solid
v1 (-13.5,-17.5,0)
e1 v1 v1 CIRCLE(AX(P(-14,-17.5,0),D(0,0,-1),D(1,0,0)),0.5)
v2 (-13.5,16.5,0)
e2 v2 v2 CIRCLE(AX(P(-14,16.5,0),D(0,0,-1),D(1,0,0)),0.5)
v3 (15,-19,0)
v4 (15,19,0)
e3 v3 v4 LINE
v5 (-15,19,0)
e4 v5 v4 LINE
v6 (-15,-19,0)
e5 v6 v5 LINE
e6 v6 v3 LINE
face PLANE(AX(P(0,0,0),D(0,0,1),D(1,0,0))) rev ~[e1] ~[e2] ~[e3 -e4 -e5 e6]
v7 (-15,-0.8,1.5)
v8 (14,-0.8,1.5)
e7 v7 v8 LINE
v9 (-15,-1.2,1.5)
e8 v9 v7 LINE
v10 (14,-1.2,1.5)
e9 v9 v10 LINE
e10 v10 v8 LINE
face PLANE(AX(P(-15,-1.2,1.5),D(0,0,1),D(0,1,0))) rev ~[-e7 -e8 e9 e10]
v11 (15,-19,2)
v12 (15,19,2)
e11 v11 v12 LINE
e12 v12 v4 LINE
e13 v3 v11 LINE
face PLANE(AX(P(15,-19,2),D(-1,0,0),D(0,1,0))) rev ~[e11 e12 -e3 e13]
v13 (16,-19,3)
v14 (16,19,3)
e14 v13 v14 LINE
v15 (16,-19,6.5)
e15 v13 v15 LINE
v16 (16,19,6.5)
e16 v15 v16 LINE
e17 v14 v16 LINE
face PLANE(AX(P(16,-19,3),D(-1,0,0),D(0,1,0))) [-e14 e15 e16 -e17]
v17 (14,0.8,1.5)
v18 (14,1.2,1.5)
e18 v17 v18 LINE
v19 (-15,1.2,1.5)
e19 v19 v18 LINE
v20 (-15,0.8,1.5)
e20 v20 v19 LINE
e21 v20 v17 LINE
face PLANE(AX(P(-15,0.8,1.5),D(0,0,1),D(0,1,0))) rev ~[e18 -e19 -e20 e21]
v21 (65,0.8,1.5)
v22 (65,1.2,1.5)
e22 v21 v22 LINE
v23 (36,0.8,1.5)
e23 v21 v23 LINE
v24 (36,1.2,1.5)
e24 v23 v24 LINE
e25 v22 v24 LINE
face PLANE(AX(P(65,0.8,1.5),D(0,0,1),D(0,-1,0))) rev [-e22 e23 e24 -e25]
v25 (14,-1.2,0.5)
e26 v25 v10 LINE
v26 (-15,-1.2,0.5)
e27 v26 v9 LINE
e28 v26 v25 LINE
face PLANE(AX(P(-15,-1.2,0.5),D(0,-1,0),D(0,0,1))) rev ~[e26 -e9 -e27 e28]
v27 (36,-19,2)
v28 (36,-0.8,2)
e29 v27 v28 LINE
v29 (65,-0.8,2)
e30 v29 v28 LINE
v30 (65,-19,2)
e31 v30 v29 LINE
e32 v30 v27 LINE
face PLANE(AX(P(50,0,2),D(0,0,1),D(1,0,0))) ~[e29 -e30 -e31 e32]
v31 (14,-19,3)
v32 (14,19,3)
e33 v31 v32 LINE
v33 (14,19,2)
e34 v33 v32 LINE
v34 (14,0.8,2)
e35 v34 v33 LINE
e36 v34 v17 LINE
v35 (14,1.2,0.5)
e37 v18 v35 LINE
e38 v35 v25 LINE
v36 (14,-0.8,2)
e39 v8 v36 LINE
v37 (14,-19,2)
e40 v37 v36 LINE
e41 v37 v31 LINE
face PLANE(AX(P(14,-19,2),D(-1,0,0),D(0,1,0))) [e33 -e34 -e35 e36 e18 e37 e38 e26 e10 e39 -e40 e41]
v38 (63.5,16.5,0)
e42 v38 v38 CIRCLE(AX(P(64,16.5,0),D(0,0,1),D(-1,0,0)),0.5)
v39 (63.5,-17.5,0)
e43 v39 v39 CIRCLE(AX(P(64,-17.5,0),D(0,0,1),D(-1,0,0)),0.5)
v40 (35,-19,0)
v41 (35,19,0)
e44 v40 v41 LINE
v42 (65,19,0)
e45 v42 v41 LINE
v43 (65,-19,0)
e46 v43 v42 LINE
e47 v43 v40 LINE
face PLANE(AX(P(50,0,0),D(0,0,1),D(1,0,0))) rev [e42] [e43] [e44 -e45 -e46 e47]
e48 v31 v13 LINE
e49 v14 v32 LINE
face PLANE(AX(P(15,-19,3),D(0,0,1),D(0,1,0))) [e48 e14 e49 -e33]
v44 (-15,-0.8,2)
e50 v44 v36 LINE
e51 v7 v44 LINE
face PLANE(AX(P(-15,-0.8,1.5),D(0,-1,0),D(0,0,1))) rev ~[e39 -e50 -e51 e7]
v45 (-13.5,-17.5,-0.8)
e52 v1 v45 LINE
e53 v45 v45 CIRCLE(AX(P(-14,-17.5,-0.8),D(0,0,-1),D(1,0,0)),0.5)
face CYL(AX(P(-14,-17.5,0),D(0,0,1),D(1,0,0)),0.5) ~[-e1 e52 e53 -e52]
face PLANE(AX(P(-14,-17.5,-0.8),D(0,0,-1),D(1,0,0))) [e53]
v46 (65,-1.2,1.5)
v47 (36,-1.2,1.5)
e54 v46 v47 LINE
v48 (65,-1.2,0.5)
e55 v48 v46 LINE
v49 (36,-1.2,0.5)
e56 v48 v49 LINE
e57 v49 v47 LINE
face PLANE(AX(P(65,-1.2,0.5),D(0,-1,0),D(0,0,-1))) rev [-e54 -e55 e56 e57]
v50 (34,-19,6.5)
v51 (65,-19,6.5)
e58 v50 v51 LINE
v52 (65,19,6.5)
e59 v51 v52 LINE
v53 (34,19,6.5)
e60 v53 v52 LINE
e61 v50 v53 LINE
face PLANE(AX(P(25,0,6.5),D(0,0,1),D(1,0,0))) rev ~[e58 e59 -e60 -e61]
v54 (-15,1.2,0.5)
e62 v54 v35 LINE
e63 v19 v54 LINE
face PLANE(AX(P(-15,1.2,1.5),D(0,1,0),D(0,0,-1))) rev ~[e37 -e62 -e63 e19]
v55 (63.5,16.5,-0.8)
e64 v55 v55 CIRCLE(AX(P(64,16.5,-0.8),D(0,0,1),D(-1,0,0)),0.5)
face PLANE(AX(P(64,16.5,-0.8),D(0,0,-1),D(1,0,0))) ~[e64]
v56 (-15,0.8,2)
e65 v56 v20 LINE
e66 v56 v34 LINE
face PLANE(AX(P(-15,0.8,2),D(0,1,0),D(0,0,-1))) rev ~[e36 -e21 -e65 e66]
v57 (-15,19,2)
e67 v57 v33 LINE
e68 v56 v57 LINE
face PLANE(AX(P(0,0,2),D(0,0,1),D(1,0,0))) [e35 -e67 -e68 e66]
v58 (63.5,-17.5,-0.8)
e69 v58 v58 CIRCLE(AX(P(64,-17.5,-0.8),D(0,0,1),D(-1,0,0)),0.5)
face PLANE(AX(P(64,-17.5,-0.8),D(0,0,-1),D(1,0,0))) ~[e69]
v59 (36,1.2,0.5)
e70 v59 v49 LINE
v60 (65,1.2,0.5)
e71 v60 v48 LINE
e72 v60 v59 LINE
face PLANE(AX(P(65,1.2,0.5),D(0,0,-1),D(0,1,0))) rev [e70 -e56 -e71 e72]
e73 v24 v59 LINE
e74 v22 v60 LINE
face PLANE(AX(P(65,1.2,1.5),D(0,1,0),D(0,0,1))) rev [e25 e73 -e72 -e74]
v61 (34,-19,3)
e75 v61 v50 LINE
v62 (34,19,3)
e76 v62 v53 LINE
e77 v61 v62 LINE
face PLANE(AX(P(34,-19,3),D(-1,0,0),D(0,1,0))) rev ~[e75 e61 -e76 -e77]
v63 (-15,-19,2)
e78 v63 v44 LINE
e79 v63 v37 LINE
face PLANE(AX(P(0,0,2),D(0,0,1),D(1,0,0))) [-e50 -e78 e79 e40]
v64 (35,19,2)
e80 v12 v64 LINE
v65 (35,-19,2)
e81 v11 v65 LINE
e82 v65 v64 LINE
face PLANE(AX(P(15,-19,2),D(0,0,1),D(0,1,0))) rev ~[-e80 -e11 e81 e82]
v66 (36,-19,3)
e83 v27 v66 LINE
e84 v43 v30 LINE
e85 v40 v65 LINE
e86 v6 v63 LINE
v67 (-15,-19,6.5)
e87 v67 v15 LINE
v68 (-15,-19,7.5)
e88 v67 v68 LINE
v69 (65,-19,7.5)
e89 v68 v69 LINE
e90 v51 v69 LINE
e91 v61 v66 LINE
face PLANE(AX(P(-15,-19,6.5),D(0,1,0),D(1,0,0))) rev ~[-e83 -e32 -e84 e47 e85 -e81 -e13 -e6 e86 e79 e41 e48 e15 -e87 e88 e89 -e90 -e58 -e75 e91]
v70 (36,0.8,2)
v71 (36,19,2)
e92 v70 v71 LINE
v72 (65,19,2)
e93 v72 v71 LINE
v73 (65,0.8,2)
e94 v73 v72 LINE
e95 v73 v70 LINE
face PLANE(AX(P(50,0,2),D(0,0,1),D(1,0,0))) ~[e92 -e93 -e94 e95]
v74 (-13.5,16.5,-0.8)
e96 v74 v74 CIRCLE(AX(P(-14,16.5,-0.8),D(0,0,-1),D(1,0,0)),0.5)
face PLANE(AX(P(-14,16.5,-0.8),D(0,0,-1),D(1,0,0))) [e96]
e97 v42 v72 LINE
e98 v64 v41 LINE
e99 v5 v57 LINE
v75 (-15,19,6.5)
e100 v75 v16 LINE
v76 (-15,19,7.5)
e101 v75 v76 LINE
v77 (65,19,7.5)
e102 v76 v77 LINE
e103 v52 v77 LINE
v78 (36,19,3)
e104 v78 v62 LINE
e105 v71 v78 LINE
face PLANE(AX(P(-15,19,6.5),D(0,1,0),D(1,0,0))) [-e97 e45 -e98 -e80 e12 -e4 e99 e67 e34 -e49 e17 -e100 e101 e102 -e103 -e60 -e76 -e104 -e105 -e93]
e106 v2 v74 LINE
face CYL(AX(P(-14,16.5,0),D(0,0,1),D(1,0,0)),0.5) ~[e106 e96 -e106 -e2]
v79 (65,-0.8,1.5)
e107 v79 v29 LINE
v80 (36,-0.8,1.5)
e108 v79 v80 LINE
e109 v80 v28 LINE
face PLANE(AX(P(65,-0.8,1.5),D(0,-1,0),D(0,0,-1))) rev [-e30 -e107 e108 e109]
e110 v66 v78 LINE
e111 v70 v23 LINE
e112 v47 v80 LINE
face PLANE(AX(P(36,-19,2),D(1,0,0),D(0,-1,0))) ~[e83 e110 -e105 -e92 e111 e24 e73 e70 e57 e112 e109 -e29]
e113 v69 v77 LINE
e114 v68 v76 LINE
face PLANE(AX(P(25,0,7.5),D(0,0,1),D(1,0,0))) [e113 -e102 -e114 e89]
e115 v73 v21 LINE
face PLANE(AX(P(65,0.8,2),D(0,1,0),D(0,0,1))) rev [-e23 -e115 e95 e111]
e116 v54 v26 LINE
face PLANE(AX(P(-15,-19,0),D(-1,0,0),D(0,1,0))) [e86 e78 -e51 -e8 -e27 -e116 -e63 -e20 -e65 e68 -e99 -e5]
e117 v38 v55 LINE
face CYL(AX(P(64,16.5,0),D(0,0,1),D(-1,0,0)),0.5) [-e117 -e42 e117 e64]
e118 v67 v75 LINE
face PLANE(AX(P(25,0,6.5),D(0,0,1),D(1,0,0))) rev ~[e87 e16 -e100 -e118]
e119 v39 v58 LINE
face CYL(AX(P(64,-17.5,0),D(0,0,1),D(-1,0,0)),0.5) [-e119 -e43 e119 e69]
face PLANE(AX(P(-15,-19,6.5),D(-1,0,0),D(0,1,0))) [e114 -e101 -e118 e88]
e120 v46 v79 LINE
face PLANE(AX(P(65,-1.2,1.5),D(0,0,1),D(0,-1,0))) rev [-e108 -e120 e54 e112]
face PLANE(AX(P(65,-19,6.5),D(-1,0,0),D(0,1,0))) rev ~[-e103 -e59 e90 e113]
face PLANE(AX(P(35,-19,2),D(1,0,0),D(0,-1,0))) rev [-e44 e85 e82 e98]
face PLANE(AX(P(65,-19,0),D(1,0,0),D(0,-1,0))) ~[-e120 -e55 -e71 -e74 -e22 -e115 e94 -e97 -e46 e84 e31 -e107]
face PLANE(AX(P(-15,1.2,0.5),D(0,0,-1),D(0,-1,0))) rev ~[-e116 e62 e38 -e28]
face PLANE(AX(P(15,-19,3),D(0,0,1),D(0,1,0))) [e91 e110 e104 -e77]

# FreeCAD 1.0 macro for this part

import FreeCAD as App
import Part
import Sketcher
Q = App.Units.Quantity


def add_polygon(sketch, points):
    """Adds a closed chain of lines whose ends are joined by coincident constraints."""
    first, n = sketch.GeometryCount, len(points)
    for a, b in zip(points, points[1:] + points[:1]):
        sketch.addGeometry(Part.LineSegment(App.Vector(*a, 0), App.Vector(*b, 0)), False)
    for i in range(n):
        sketch.addConstraint(Sketcher.Constraint("Coincident", first + i, 2, first + (i + 1) % n, 1))

doc = App.newDocument("Part")
params = doc.addObject("Spreadsheet::Sheet", "Params")
for row, (alias, value) in enumerate([
    ("sketch1_width", "30 mm"),
    ("sketch1_height", "38 mm"),
    ("pad1_length", "2 mm"),
    ("sketch2_diameter", "1 mm"),
    ("pad2_length", "0.8 mm"),
    ("sketch3_width", "1 mm"),
    ("sketch3_height", "38 mm"),
    ("pad3_length", "1 mm"),
    ("sketch4_width", "38 mm"),
    ("sketch4_height", "1 mm"),
    ("pad4_length", "20 mm"),
    ("sketch5_width", "18 mm"),
    ("sketch5_height", "38 mm"),
    ("pad5_length", "3.5 mm"),
    ("sketch6_height", "1 mm"),
    ("sketch6_width", "1.6 mm"),
    ("sketch6_width2", "0.4 mm"),
    ("sketch6_height2", "0.5 mm"),
    ("pocket1_length", "29 mm"),
    ("sketch7_width", "80 mm"),
    ("sketch7_height", "38 mm"),
    ("pad6_length", "1 mm"),
], start=1):
    params.set(f"A{row}", alias)
    params.set(f"B{row}", "=" + value)
    params.setAlias(f"B{row}", alias)

body = doc.addObject("PartDesign::Body", "Body")

sketch1 = body.newObject("Sketcher::SketchObject", "Sketch")
sketch1.AttachmentSupport = (doc.getObject("XY_Plane"), [""])
sketch1.MapMode = "FlatFace"
add_polygon(sketch1, [(-15, 19), (-15, -19), (15, -19), (15, 19)])
sketch1.addConstraint(Sketcher.Constraint("Vertical", 0))
sketch1.addConstraint(Sketcher.Constraint("Horizontal", 1))
sketch1.addConstraint(Sketcher.Constraint("Vertical", 2))
sketch1.addConstraint(Sketcher.Constraint("Horizontal", 3))
sketch1.addConstraint(Sketcher.Constraint("Symmetric", 0, 2, 2, 2, -1, 1))
sketch1.addConstraint(Sketcher.Constraint("DistanceX", 1, 1, 1, 2, Q("30 mm")))
sketch1.addConstraint(Sketcher.Constraint("DistanceY", 0, 2, 0, 1, Q("38 mm")))
sketch1.setExpression("Constraints[9]", "Params.sketch1_width")
sketch1.setExpression("Constraints[10]", "Params.sketch1_height")
pad1 = body.newObject("PartDesign::Pad", "Pad")
pad1.Profile = sketch1
pad1.setExpression("Length", "Params.pad1_length")

sketch2 = body.newObject("Sketcher::SketchObject", "Sketch001")
sketch2.AttachmentSupport = (doc.getObject("XY_Plane"), [""])
sketch2.MapMode = "FlatFace"
sketch2.addGeometry(Part.Circle(App.Vector(-14, 16.5, 0), App.Vector(0, 0, 1), 0.5), False)
sketch2.addGeometry(Part.Circle(App.Vector(-14, -17.5, 0), App.Vector(0, 0, 1), 0.5), False)
sketch2.addConstraint(Sketcher.Constraint("Equal", 0, 1))
sketch2.addConstraint(Sketcher.Constraint("Vertical", 0, 3, 1, 3))
sketch2.addConstraint(Sketcher.Constraint("Diameter", 0, Q("1 mm")))
sketch2.addConstraint(Sketcher.Constraint("DistanceX", 0, 3, -1, 1, Q("14 mm")))
sketch2.addConstraint(Sketcher.Constraint("DistanceY", 1, 3, 0, 3, Q("34 mm")))
sketch2.addConstraint(Sketcher.Constraint("DistanceY", -1, 1, 0, 3, Q("16.5 mm")))
sketch2.setExpression("Constraints[2]", "Params.sketch2_diameter")
pad2 = body.newObject("PartDesign::Pad", "Pad001")
pad2.Profile = sketch2
pad2.setExpression("Length", "Params.pad2_length")
pad2.Reversed = True

sketch3 = body.newObject("Sketcher::SketchObject", "Sketch002")
sketch3.AttachmentSupport = (doc.getObject("XY_Plane"), [""])
sketch3.MapMode = "FlatFace"
sketch3.AttachmentOffset = App.Placement(App.Vector(0, 0, 2), App.Rotation())
add_polygon(sketch3, [(14, 19), (14, -19), (15, -19), (15, 19)])
sketch3.addConstraint(Sketcher.Constraint("Vertical", 0))
sketch3.addConstraint(Sketcher.Constraint("Horizontal", 1))
sketch3.addConstraint(Sketcher.Constraint("Vertical", 2))
sketch3.addConstraint(Sketcher.Constraint("Horizontal", 3))
sketch3.addConstraint(Sketcher.Constraint("DistanceX", 1, 1, 1, 2, Q("1 mm")))
sketch3.addConstraint(Sketcher.Constraint("DistanceY", 0, 2, 0, 1, Q("38 mm")))
sketch3.addConstraint(Sketcher.Constraint("DistanceX", -1, 1, 0, 2, Q("14 mm")))
sketch3.addConstraint(Sketcher.Constraint("DistanceY", 0, 2, -1, 1, Q("19 mm")))
sketch3.setExpression("Constraints[8]", "Params.sketch3_width")
sketch3.setExpression("Constraints[9]", "Params.sketch3_height")
pad3 = body.newObject("PartDesign::Pad", "Pad002")
pad3.Profile = sketch3
pad3.setExpression("Length", "Params.pad3_length")

sketch4 = body.newObject("Sketcher::SketchObject", "Sketch003")
sketch4.AttachmentSupport = (doc.getObject("YZ_Plane"), [""])
sketch4.MapMode = "FlatFace"
sketch4.AttachmentOffset = App.Placement(App.Vector(0, 0, 15), App.Rotation())
add_polygon(sketch4, [(19, 3), (-19, 3), (-19, 2), (19, 2)])
sketch4.addConstraint(Sketcher.Constraint("Horizontal", 0))
sketch4.addConstraint(Sketcher.Constraint("Vertical", 1))
sketch4.addConstraint(Sketcher.Constraint("Horizontal", 2))
sketch4.addConstraint(Sketcher.Constraint("Vertical", 3))
sketch4.addConstraint(Sketcher.Constraint("DistanceX", 0, 2, 0, 1, Q("38 mm")))
sketch4.addConstraint(Sketcher.Constraint("DistanceY", 1, 2, 1, 1, Q("1 mm")))
sketch4.addConstraint(Sketcher.Constraint("DistanceX", 0, 2, -1, 1, Q("19 mm")))
sketch4.addConstraint(Sketcher.Constraint("DistanceY", -1, 1, 0, 2, Q("3 mm")))
sketch4.setExpression("Constraints[8]", "Params.sketch4_width")
sketch4.setExpression("Constraints[9]", "Params.sketch4_height")
pad4 = body.newObject("PartDesign::Pad", "Pad003")
pad4.Profile = sketch4
pad4.setExpression("Length", "Params.pad4_length")
body2 = doc.addObject("PartDesign::Body", "Body001")
doc.recompute()

body2.BaseFeature = body
doc.recompute()

mirroring = doc.addObject("Part::Mirroring", "Mirroring")
mirroring.Source = body
mirroring.Base = App.Vector(25, 0, 0)
mirroring.Normal = App.Vector(1, 0, 0)
body3 = doc.addObject("PartDesign::Body", "Body002")
body3.BaseFeature = mirroring
boolean = body2.newObject("PartDesign::Boolean", "Boolean")
boolean.Type = "Fuse"
boolean.addObjects([body3])
doc.recompute()

sketch5 = body2.newObject("Sketcher::SketchObject", "Sketch004")
sketch5.AttachmentSupport = (doc.getObject("XY_Plane001"), [""])
sketch5.MapMode = "FlatFace"
sketch5.AttachmentOffset = App.Placement(App.Vector(0, 0, 3), App.Rotation())
add_polygon(sketch5, [(16, 19), (16, -19), (34, -19), (34, 19)])
sketch5.addConstraint(Sketcher.Constraint("Vertical", 0))
sketch5.addConstraint(Sketcher.Constraint("Horizontal", 1))
sketch5.addConstraint(Sketcher.Constraint("Vertical", 2))
sketch5.addConstraint(Sketcher.Constraint("Horizontal", 3))
sketch5.addConstraint(Sketcher.Constraint("DistanceX", 1, 1, 1, 2, Q("18 mm")))
sketch5.addConstraint(Sketcher.Constraint("DistanceY", 0, 2, 0, 1, Q("38 mm")))
sketch5.addConstraint(Sketcher.Constraint("DistanceX", -1, 1, 0, 2, Q("16 mm")))
sketch5.addConstraint(Sketcher.Constraint("DistanceY", 0, 2, -1, 1, Q("19 mm")))
sketch5.setExpression("Constraints[8]", "Params.sketch5_width")
sketch5.setExpression("Constraints[9]", "Params.sketch5_height")
pad5 = body2.newObject("PartDesign::Pad", "Pad004")
pad5.Profile = sketch5
pad5.setExpression("Length", "Params.pad5_length")

sketch6 = body2.newObject("Sketcher::SketchObject", "Sketch005")
sketch6.AttachmentSupport = (doc.getObject("YZ_Plane001"), [""])
sketch6.MapMode = "FlatFace"
sketch6.AttachmentOffset = App.Placement(App.Vector(0, 0, -15), App.Rotation())
add_polygon(sketch6, [(-0.8, 2), (0.8, 2), (0.8, 1.5), (1.2, 1.5), (1.2, 0.5), (-1.2, 0.5), (-1.2, 1.5), (-0.8, 1.5)])
sketch6.addConstraint(Sketcher.Constraint("Horizontal", 0))
sketch6.addConstraint(Sketcher.Constraint("Vertical", 1))
sketch6.addConstraint(Sketcher.Constraint("Horizontal", 2))
sketch6.addConstraint(Sketcher.Constraint("Vertical", 3))
sketch6.addConstraint(Sketcher.Constraint("Horizontal", 4))
sketch6.addConstraint(Sketcher.Constraint("Vertical", 5))
sketch6.addConstraint(Sketcher.Constraint("Horizontal", 6))
sketch6.addConstraint(Sketcher.Constraint("Vertical", 7))
sketch6.addConstraint(Sketcher.Constraint("Symmetric", 2, 2, 5, 2, -2))
sketch6.addConstraint(Sketcher.Constraint("Equal", 2, 6))
sketch6.addConstraint(Sketcher.Constraint("DistanceY", 3, 2, 3, 1, Q("1 mm")))
sketch6.addConstraint(Sketcher.Constraint("DistanceX", 0, 1, 0, 2, Q("1.6 mm")))
sketch6.addConstraint(Sketcher.Constraint("DistanceX", 2, 1, 2, 2, Q("0.4 mm")))
sketch6.addConstraint(Sketcher.Constraint("DistanceY", 1, 2, 1, 1, Q("0.5 mm")))
sketch6.addConstraint(Sketcher.Constraint("DistanceY", -1, 1, 0, 2, Q("2 mm")))
sketch6.setExpression("Constraints[18]", "Params.sketch6_height")
sketch6.setExpression("Constraints[19]", "Params.sketch6_width")
sketch6.setExpression("Constraints[20]", "Params.sketch6_width2")
sketch6.setExpression("Constraints[21]", "Params.sketch6_height2")
pocket1 = body2.newObject("PartDesign::Pocket", "Pocket")
pocket1.Profile = sketch6
pocket1.setExpression("Length", "Params.pocket1_length")
pocket1.Reversed = True
doc.recompute()

datumplane = body2.newObject("PartDesign::Plane", "DatumPlane")
datumplane.AttachmentSupport = (doc.getObject("YZ_Plane001"), [""])
datumplane.MapMode = "FlatFace"
datumplane.AttachmentOffset = App.Placement(App.Vector(0, 0, 25), App.Rotation())
mirrored = body2.newObject("PartDesign::Mirrored", "Mirrored")
mirrored.Originals = [pocket1]
mirrored.MirrorPlane = (datumplane, [""])
body2.Tip = mirrored

sketch7 = body2.newObject("Sketcher::SketchObject", "Sketch006")
sketch7.AttachmentSupport = (doc.getObject("XY_Plane001"), [""])
sketch7.MapMode = "FlatFace"
sketch7.AttachmentOffset = App.Placement(App.Vector(0, 0, 6.5), App.Rotation())
add_polygon(sketch7, [(-15, 19), (-15, -19), (65, -19), (65, 19)])
sketch7.addConstraint(Sketcher.Constraint("Vertical", 0))
sketch7.addConstraint(Sketcher.Constraint("Horizontal", 1))
sketch7.addConstraint(Sketcher.Constraint("Vertical", 2))
sketch7.addConstraint(Sketcher.Constraint("Horizontal", 3))
sketch7.addConstraint(Sketcher.Constraint("DistanceX", 1, 1, 1, 2, Q("80 mm")))
sketch7.addConstraint(Sketcher.Constraint("DistanceY", 0, 2, 0, 1, Q("38 mm")))
sketch7.addConstraint(Sketcher.Constraint("DistanceX", 0, 2, -1, 1, Q("15 mm")))
sketch7.addConstraint(Sketcher.Constraint("DistanceY", 0, 2, -1, 1, Q("19 mm")))
sketch7.setExpression("Constraints[8]", "Params.sketch7_width")
sketch7.setExpression("Constraints[9]", "Params.sketch7_height")
pad6 = body2.newObject("PartDesign::Pad", "Pad005")
pad6.Profile = sketch7
pad6.setExpression("Length", "Params.pad6_length")
mirroring.Visibility = False

doc.recompute()
